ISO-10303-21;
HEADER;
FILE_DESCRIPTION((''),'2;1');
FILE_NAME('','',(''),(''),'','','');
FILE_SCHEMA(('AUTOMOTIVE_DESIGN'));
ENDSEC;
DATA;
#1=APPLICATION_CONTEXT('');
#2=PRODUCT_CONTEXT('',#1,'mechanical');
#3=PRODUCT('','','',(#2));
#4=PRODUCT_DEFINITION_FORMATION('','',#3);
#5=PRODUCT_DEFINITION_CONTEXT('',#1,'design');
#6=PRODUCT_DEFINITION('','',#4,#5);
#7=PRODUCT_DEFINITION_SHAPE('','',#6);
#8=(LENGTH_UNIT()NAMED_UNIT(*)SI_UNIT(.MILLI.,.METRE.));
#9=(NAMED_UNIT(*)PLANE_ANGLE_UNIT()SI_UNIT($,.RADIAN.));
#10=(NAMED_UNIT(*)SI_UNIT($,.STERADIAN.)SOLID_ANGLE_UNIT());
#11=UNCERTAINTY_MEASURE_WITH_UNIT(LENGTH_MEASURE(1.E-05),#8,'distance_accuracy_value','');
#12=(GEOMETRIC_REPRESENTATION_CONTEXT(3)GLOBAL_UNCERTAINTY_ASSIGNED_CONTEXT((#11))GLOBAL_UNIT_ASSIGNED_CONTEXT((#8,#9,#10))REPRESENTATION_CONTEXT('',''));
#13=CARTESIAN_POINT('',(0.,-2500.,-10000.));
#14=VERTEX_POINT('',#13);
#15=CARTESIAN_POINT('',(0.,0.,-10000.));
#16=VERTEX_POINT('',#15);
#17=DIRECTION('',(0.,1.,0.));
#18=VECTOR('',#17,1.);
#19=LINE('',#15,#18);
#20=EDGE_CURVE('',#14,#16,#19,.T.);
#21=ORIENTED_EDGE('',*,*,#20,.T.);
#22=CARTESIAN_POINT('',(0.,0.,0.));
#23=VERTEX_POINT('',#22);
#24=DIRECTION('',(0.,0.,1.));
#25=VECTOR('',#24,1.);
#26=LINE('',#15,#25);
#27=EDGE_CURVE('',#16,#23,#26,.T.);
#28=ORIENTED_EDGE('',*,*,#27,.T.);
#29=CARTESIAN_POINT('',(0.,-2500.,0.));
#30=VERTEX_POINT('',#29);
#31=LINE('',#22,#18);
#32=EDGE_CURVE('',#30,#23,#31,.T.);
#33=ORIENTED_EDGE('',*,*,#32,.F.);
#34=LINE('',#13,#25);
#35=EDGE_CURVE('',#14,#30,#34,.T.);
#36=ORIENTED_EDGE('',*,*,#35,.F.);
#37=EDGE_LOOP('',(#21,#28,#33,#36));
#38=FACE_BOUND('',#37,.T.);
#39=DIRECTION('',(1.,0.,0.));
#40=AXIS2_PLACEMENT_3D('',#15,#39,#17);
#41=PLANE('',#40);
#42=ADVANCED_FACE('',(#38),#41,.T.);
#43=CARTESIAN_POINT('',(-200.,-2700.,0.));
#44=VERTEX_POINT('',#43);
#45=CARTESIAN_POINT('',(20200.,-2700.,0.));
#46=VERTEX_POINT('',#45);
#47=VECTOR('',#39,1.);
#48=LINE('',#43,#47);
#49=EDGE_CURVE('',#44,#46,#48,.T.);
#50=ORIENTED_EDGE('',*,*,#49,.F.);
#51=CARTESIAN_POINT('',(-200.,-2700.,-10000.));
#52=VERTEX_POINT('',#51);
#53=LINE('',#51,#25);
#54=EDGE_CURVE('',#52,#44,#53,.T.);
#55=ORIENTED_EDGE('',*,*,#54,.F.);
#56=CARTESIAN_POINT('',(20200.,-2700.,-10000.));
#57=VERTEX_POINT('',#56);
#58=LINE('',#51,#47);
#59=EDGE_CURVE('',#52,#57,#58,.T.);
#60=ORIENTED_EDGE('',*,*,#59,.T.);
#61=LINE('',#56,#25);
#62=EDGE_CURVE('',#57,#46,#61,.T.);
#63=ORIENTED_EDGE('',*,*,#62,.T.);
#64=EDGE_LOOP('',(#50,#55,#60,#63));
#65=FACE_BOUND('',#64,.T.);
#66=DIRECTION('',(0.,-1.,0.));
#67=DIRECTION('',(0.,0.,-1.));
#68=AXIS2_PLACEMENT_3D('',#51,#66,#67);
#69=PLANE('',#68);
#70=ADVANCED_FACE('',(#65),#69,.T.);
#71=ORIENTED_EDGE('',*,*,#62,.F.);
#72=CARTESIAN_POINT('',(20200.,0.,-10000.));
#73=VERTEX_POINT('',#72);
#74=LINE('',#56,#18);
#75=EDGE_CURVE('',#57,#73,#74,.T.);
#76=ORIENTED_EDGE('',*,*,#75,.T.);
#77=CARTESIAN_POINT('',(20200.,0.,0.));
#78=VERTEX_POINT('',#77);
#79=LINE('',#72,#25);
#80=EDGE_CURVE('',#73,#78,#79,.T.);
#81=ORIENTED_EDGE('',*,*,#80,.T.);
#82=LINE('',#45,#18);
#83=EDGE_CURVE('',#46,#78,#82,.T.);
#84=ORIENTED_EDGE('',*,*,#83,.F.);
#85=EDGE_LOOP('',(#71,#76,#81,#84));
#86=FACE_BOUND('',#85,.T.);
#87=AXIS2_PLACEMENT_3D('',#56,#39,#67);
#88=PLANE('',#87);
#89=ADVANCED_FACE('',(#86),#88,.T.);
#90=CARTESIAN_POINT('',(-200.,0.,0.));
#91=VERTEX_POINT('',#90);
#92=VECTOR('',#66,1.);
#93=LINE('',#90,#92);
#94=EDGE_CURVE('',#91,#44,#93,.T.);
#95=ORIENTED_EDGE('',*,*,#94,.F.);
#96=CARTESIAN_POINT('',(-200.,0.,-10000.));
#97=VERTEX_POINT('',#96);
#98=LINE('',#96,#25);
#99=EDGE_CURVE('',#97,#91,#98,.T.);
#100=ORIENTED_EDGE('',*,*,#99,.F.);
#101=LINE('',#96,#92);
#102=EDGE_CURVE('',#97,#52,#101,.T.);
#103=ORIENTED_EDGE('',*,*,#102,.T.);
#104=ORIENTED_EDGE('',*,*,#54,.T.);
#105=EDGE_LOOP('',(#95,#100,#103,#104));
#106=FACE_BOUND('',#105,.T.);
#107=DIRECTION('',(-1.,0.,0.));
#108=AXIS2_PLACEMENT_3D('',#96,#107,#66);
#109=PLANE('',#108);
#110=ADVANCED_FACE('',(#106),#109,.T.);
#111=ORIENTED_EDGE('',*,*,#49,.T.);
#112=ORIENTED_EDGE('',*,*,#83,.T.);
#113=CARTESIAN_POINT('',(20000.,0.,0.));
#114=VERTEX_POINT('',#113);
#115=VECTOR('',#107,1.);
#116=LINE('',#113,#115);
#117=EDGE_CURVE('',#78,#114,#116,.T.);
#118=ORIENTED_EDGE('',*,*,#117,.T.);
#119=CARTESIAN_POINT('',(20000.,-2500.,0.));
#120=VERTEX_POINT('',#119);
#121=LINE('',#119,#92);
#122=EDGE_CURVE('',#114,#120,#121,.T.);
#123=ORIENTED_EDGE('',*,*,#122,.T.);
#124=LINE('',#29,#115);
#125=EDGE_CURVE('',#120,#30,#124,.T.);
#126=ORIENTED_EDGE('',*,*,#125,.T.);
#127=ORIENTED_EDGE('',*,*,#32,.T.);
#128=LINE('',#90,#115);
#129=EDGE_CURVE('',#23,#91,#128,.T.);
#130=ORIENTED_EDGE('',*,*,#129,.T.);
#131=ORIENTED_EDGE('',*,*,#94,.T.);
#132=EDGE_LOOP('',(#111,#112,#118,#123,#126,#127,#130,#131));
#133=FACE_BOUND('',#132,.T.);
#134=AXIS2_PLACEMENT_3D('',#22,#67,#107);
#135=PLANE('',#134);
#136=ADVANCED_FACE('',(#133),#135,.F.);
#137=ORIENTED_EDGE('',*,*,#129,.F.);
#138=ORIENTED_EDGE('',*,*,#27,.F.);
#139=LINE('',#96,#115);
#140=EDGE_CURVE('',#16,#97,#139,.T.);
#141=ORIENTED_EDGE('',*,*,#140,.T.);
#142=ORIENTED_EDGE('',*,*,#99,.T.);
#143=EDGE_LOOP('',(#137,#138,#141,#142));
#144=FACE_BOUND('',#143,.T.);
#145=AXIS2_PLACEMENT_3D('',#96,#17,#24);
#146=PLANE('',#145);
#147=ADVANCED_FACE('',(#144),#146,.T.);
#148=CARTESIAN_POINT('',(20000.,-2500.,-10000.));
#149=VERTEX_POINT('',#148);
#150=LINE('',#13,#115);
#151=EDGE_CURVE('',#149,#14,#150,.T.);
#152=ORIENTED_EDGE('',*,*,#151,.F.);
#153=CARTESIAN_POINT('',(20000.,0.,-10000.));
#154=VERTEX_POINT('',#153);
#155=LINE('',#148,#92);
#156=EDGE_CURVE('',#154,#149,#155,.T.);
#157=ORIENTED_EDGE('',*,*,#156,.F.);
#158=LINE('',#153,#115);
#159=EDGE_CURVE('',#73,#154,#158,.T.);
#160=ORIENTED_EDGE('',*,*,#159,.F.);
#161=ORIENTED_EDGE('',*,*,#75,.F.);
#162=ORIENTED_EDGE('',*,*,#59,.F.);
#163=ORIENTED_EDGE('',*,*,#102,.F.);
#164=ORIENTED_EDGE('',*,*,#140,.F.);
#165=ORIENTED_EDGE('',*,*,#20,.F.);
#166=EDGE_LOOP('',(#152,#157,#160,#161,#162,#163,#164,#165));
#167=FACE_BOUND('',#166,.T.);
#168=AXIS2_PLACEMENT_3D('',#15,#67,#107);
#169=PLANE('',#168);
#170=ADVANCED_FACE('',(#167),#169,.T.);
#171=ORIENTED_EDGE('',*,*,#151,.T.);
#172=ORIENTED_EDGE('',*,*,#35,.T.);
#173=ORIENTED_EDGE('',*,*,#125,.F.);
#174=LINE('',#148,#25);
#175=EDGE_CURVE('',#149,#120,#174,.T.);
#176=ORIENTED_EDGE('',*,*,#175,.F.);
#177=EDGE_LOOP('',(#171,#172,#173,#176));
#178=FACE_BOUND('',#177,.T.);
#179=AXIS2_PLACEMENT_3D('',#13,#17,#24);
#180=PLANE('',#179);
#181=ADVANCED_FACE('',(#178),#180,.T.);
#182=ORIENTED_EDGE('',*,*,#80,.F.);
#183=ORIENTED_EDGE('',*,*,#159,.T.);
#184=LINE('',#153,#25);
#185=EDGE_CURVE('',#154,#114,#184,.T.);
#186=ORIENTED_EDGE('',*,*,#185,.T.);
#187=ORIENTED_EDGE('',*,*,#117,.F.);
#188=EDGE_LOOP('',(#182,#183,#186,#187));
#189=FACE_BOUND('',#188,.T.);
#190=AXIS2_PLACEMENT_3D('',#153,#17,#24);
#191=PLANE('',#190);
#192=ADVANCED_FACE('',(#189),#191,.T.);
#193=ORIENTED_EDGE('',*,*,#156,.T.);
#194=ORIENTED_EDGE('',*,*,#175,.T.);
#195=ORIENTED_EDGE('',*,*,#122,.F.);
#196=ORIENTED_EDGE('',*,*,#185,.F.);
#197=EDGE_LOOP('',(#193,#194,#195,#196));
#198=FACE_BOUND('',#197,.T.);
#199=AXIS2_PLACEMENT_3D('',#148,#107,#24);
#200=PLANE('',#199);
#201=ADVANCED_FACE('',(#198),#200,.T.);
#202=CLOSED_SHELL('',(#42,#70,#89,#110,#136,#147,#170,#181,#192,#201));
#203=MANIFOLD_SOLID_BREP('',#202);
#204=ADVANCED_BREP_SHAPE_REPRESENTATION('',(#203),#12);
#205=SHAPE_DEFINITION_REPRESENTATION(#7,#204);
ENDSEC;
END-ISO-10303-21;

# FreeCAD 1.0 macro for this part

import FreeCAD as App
import Part
import Sketcher


def add_polygon(sketch, points):
    """Adds a closed chain of lines whose ends are joined by coincident constraints."""
    first, n = sketch.GeometryCount, len(points)
    for a, b in zip(points, points[1:] + points[:1]):
        sketch.addGeometry(Part.LineSegment(App.Vector(*a, 0), App.Vector(*b, 0)), False)
    for i in range(n):
        sketch.addConstraint(Sketcher.Constraint("Coincident", first + i, 2, first + (i + 1) % n, 1))

doc = App.newDocument("Part")
body = doc.addObject("PartDesign::Body", "Body")

# Sketch on XY plane
sketch1 = body.newObject("Sketcher::SketchObject", "Sketch")
sketch1.AttachmentSupport = (doc.getObject("XY_Plane"), [""])
sketch1.MapMode = "FlatFace"
add_polygon(sketch1, [(0, -2500), (0, 0), (-200, 0), (-200, -2700), (20200, -2700), (20200, 0), (20000, 0), (20000, -2500)])  # lines 0-7
sketch1.addConstraint(Sketcher.Constraint("Vertical", 0))
sketch1.addConstraint(Sketcher.Constraint("Horizontal", 1))
sketch1.addConstraint(Sketcher.Constraint("Vertical", 2))
sketch1.addConstraint(Sketcher.Constraint("Horizontal", 3))
sketch1.addConstraint(Sketcher.Constraint("Vertical", 4))
sketch1.addConstraint(Sketcher.Constraint("Horizontal", 5))
sketch1.addConstraint(Sketcher.Constraint("Vertical", 6))
sketch1.addConstraint(Sketcher.Constraint("Horizontal", 7))
sketch1.addConstraint(Sketcher.Constraint("Coincident", 0, 2, -1, 1))
sketch1.addConstraint(Sketcher.Constraint("PointOnObject", 4, 2, -1))
sketch1.addConstraint(Sketcher.Constraint("Equal", 1, 5))
sketch1.addConstraint(Sketcher.Constraint("DistanceX", 1, 2, 1, 1, 200.0))
sketch1.addConstraint(Sketcher.Constraint("DistanceX", 3, 1, 3, 2, 20400.0))
sketch1.addConstraint(Sketcher.Constraint("DistanceY", 0, 1, 0, 2, 2500.0))
sketch1.addConstraint(Sketcher.Constraint("DistanceY", 2, 2, 2, 1, 2700.0))
pad1 = body.newObject("PartDesign::Pad", "Pad")
pad1.Profile = sketch1
pad1.Length = 10000
pad1.Reversed = True

doc.recompute()
